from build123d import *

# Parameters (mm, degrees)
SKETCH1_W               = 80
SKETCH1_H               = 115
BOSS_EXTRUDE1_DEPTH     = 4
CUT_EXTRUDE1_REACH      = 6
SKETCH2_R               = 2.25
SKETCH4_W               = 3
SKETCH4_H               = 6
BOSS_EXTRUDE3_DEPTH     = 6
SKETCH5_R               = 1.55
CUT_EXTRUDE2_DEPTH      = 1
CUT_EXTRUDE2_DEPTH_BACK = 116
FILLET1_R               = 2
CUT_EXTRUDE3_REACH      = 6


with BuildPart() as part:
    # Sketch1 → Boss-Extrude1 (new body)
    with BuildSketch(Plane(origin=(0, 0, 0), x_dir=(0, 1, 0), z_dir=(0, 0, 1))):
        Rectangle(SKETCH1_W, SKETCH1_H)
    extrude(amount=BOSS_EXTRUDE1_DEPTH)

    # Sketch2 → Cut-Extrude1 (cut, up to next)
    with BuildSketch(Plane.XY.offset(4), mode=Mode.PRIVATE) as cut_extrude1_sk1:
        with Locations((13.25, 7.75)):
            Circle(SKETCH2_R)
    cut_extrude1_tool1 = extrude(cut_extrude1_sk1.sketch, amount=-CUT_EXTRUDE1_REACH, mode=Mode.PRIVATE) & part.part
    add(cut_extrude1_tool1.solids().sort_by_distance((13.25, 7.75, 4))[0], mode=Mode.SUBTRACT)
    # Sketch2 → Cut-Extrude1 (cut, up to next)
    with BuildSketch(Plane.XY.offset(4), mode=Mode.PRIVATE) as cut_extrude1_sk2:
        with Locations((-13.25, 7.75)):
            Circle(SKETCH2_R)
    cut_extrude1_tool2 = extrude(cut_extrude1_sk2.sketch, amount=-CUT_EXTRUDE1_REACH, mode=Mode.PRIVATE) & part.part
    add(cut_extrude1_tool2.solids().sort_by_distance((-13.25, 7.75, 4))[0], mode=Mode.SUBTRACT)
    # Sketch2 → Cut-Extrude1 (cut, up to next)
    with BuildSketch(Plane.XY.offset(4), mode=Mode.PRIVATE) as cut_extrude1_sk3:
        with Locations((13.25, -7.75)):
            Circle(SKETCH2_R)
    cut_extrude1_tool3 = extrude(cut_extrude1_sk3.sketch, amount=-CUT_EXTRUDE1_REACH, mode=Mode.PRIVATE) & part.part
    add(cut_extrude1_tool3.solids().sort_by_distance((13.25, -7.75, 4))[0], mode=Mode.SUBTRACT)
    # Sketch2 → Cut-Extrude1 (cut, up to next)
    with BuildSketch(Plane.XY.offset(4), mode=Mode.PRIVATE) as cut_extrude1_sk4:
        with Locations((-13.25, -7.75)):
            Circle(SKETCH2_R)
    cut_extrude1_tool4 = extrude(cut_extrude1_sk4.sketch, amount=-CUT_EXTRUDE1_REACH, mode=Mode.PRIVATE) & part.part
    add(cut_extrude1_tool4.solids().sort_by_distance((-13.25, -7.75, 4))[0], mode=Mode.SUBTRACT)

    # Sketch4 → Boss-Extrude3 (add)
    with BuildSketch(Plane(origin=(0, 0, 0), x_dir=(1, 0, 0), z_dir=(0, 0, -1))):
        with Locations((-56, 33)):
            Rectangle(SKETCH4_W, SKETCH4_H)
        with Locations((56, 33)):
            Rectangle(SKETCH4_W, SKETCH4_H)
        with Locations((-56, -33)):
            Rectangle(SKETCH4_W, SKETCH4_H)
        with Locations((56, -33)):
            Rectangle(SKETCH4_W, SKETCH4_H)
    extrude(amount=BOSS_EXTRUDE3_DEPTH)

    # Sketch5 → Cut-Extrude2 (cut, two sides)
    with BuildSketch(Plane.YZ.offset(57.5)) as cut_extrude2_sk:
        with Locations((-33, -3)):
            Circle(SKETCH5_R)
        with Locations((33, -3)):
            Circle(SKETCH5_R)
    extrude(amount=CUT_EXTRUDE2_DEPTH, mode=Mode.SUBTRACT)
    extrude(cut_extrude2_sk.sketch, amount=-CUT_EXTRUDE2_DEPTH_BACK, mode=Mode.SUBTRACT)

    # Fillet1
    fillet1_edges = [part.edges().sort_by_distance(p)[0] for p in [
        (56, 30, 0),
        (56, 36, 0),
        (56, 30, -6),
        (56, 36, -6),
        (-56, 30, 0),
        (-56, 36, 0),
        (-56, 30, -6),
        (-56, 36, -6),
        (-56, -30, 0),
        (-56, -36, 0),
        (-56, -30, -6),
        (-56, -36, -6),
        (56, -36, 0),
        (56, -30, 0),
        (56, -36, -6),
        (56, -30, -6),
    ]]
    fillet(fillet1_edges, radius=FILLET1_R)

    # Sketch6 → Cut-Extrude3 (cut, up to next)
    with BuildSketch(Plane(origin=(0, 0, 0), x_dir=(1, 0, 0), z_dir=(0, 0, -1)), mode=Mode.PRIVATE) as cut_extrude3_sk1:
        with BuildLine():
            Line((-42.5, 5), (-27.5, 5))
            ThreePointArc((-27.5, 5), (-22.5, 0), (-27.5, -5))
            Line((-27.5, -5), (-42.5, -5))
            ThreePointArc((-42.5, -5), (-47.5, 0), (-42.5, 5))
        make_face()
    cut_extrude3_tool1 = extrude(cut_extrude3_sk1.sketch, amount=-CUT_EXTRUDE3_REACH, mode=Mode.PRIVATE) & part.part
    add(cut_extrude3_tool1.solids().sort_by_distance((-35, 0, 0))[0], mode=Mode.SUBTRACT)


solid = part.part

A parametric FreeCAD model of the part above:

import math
import FreeCAD as App
import Part
import Sketcher

V = App.Vector


def edges_at(feature, points):
    """Names of the edges that pass closest to the given points."""
    edges = feature.Shape.Edges
    near = lambda p: min(range(len(edges)), key=lambda i: edges[i].distToShape(Part.Vertex(*p))[0])
    return sorted({f"Edge{near(p) + 1}" for p in points})

doc = App.newDocument("Part")
body = doc.addObject("PartDesign::Body", "Body")

# Sketch on XY plane
sketch1 = body.newObject("Sketcher::SketchObject", "Sketch")
sketch1.AttachmentSupport = (doc.getObject("XY_Plane"), [""])
sketch1.MapMode = "FlatFace"
sketch1.addGeometry(Part.LineSegment(V(-58, -40, 0), V(58, -40, 0)), False)
sketch1.addGeometry(Part.LineSegment(V(58, -40, 0), V(58, 40, 0)), False)
sketch1.addGeometry(Part.LineSegment(V(58, 40, 0), V(-58, 40, 0)), False)
sketch1.addGeometry(Part.LineSegment(V(-58, 40, 0), V(-58, -40, 0)), False)
sketch1.addConstraint(Sketcher.Constraint("Coincident", 0, 2, 1, 1))
sketch1.addConstraint(Sketcher.Constraint("Coincident", 1, 2, 2, 1))
sketch1.addConstraint(Sketcher.Constraint("Coincident", 2, 2, 3, 1))
sketch1.addConstraint(Sketcher.Constraint("Coincident", 3, 2, 0, 1))
sketch1.addConstraint(Sketcher.Constraint("Horizontal", 0))
sketch1.addConstraint(Sketcher.Constraint("Vertical", 1))
sketch1.addConstraint(Sketcher.Constraint("Horizontal", 2))
sketch1.addConstraint(Sketcher.Constraint("Vertical", 3))
sketch1.addConstraint(Sketcher.Constraint("Symmetric", 0, 2, 2, 2, -1, 1))
sketch1.addConstraint(Sketcher.Constraint("DistanceX", 0, 1, 0, 2, 115.0))
sketch1.addConstraint(Sketcher.Constraint("DistanceY", 1, 1, 1, 2, 80.0))
pad1 = body.newObject("PartDesign::Pad", "Pad")
pad1.Profile = sketch1
pad1.Length = 4

# Sketch on XY plane
sketch2 = body.newObject("Sketcher::SketchObject", "Sketch001")
sketch2.AttachmentSupport = (doc.getObject("XY_Plane"), [""])
sketch2.MapMode = "FlatFace"
sketch2.AttachmentOffset = App.Placement(V(0, 0, 4), App.Rotation())
sketch2.addGeometry(Part.Circle(V(13.2, 7.8, 0), V(0, 0, 1), 2.2), False)
sketch2.addConstraint(Sketcher.Constraint("Diameter", 0, 4.5))
sketch2.addConstraint(Sketcher.Constraint("DistanceX", -1, 1, 0, 3, 13.25))
sketch2.addConstraint(Sketcher.Constraint("DistanceY", -1, 1, 0, 3, 7.75))
pocket1 = body.newObject("PartDesign::Pocket", "Pocket")
pocket1.Profile = sketch2
pocket1.Type = "UpToFirst"

# Sketch on XY plane
sketch3 = body.newObject("Sketcher::SketchObject", "Sketch002")
sketch3.AttachmentSupport = (doc.getObject("XY_Plane"), [""])
sketch3.MapMode = "FlatFace"
sketch3.AttachmentOffset = App.Placement(V(0, 0, 4), App.Rotation())
sketch3.addGeometry(Part.Circle(V(-13.2, 7.8, 0), V(0, 0, 1), 2.2), False)
sketch3.addConstraint(Sketcher.Constraint("Diameter", 0, 4.5))
sketch3.addConstraint(Sketcher.Constraint("DistanceX", 0, 3, -1, 1, 13.25))
sketch3.addConstraint(Sketcher.Constraint("DistanceY", -1, 1, 0, 3, 7.75))
pocket2 = body.newObject("PartDesign::Pocket", "Pocket001")
pocket2.Profile = sketch3
pocket2.Type = "UpToFirst"

# Sketch on XY plane
sketch4 = body.newObject("Sketcher::SketchObject", "Sketch003")
sketch4.AttachmentSupport = (doc.getObject("XY_Plane"), [""])
sketch4.MapMode = "FlatFace"
sketch4.AttachmentOffset = App.Placement(V(0, 0, 4), App.Rotation())
sketch4.addGeometry(Part.Circle(V(13.2, -7.8, 0), V(0, 0, 1), 2.2), False)
sketch4.addConstraint(Sketcher.Constraint("Diameter", 0, 4.5))
sketch4.addConstraint(Sketcher.Constraint("DistanceX", -1, 1, 0, 3, 13.25))
sketch4.addConstraint(Sketcher.Constraint("DistanceY", 0, 3, -1, 1, 7.75))
pocket3 = body.newObject("PartDesign::Pocket", "Pocket002")
pocket3.Profile = sketch4
pocket3.Type = "UpToFirst"

# Sketch on XY plane
sketch5 = body.newObject("Sketcher::SketchObject", "Sketch004")
sketch5.AttachmentSupport = (doc.getObject("XY_Plane"), [""])
sketch5.MapMode = "FlatFace"
sketch5.AttachmentOffset = App.Placement(V(0, 0, 4), App.Rotation())
sketch5.addGeometry(Part.Circle(V(-13.2, -7.8, 0), V(0, 0, 1), 2.2), False)
sketch5.addConstraint(Sketcher.Constraint("Diameter", 0, 4.5))
sketch5.addConstraint(Sketcher.Constraint("DistanceX", 0, 3, -1, 1, 13.25))
sketch5.addConstraint(Sketcher.Constraint("DistanceY", 0, 3, -1, 1, 7.75))
pocket4 = body.newObject("PartDesign::Pocket", "Pocket003")
pocket4.Profile = sketch5
pocket4.Type = "UpToFirst"

# Sketch on XY plane
sketch6 = body.newObject("Sketcher::SketchObject", "Sketch005")
sketch6.AttachmentSupport = (doc.getObject("XY_Plane"), [""])
sketch6.MapMode = "FlatFace"
sketch6.addGeometry(Part.LineSegment(V(-57.5, -36, 0), V(-57.5, -30, 0)), False)
sketch6.addGeometry(Part.LineSegment(V(-57.5, -30, 0), V(-54.5, -30, 0)), False)
sketch6.addGeometry(Part.LineSegment(V(-54.5, -30, 0), V(-54.5, -36, 0)), False)
sketch6.addGeometry(Part.LineSegment(V(-54.5, -36, 0), V(-57.5, -36, 0)), False)
sketch6.addGeometry(Part.LineSegment(V(54.5, -36, 0), V(54.5, -30, 0)), False)
sketch6.addGeometry(Part.LineSegment(V(54.5, -30, 0), V(57.5, -30, 0)), False)
sketch6.addGeometry(Part.LineSegment(V(57.5, -30, 0), V(57.5, -36, 0)), False)
sketch6.addGeometry(Part.LineSegment(V(57.5, -36, 0), V(54.5, -36, 0)), False)
sketch6.addGeometry(Part.LineSegment(V(-57.5, 30, 0), V(-57.5, 36, 0)), False)
sketch6.addGeometry(Part.LineSegment(V(-57.5, 36, 0), V(-54.5, 36, 0)), False)
sketch6.addGeometry(Part.LineSegment(V(-54.5, 36, 0), V(-54.5, 30, 0)), False)
sketch6.addGeometry(Part.LineSegment(V(-54.5, 30, 0), V(-57.5, 30, 0)), False)
sketch6.addGeometry(Part.LineSegment(V(54.5, 30, 0), V(54.5, 36, 0)), False)
sketch6.addGeometry(Part.LineSegment(V(54.5, 36, 0), V(57.5, 36, 0)), False)
sketch6.addGeometry(Part.LineSegment(V(57.5, 36, 0), V(57.5, 30, 0)), False)
sketch6.addGeometry(Part.LineSegment(V(57.5, 30, 0), V(54.5, 30, 0)), False)
sketch6.addConstraint(Sketcher.Constraint("Coincident", 0, 2, 1, 1))
sketch6.addConstraint(Sketcher.Constraint("Coincident", 1, 2, 2, 1))
sketch6.addConstraint(Sketcher.Constraint("Coincident", 2, 2, 3, 1))
sketch6.addConstraint(Sketcher.Constraint("Coincident", 3, 2, 0, 1))
sketch6.addConstraint(Sketcher.Constraint("Coincident", 4, 2, 5, 1))
sketch6.addConstraint(Sketcher.Constraint("Coincident", 5, 2, 6, 1))
sketch6.addConstraint(Sketcher.Constraint("Coincident", 6, 2, 7, 1))
sketch6.addConstraint(Sketcher.Constraint("Coincident", 7, 2, 4, 1))
sketch6.addConstraint(Sketcher.Constraint("Coincident", 8, 2, 9, 1))
sketch6.addConstraint(Sketcher.Constraint("Coincident", 9, 2, 10, 1))
sketch6.addConstraint(Sketcher.Constraint("Coincident", 10, 2, 11, 1))
sketch6.addConstraint(Sketcher.Constraint("Coincident", 11, 2, 8, 1))
sketch6.addConstraint(Sketcher.Constraint("Coincident", 12, 2, 13, 1))
sketch6.addConstraint(Sketcher.Constraint("Coincident", 13, 2, 14, 1))
sketch6.addConstraint(Sketcher.Constraint("Coincident", 14, 2, 15, 1))
sketch6.addConstraint(Sketcher.Constraint("Coincident", 15, 2, 12, 1))
sketch6.addConstraint(Sketcher.Constraint("Vertical", 0))
sketch6.addConstraint(Sketcher.Constraint("Horizontal", 1))
sketch6.addConstraint(Sketcher.Constraint("Vertical", 2))
sketch6.addConstraint(Sketcher.Constraint("Horizontal", 3))
sketch6.addConstraint(Sketcher.Constraint("Vertical", 4))
sketch6.addConstraint(Sketcher.Constraint("Horizontal", 5))
sketch6.addConstraint(Sketcher.Constraint("Vertical", 6))
sketch6.addConstraint(Sketcher.Constraint("Horizontal", 7))
sketch6.addConstraint(Sketcher.Constraint("Vertical", 8))
sketch6.addConstraint(Sketcher.Constraint("Horizontal", 9))
sketch6.addConstraint(Sketcher.Constraint("Vertical", 10))
sketch6.addConstraint(Sketcher.Constraint("Horizontal", 11))
sketch6.addConstraint(Sketcher.Constraint("Vertical", 12))
sketch6.addConstraint(Sketcher.Constraint("Horizontal", 13))
sketch6.addConstraint(Sketcher.Constraint("Vertical", 14))
sketch6.addConstraint(Sketcher.Constraint("Horizontal", 15))
sketch6.addConstraint(Sketcher.Constraint("Symmetric", 6, 2, 8, 2, -1, 1))
sketch6.addConstraint(Sketcher.Constraint("Symmetric", 4, 2, 10, 2, -1, 1))
sketch6.addConstraint(Sketcher.Constraint("Symmetric", 2, 2, 12, 2, -1, 1))
sketch6.addConstraint(Sketcher.Constraint("Symmetric", 0, 2, 14, 2, -1, 1))
sketch6.addConstraint(Sketcher.Constraint("Symmetric", 1, 2, 4, 2, -2))
sketch6.addConstraint(Sketcher.Constraint("Symmetric", 3, 2, 6, 2, -2))
sketch6.addConstraint(Sketcher.Constraint("DistanceX", 1, 1, 1, 2, 3.0))
sketch6.addConstraint(Sketcher.Constraint("DistanceY", 0, 1, 0, 2, 6.0))
sketch6.addConstraint(Sketcher.Constraint("DistanceY", 0, 2, -1, 1, 30.0))
sketch6.addConstraint(Sketcher.Constraint("DistanceX", 1, 2, 4, 2, 109.0))
pad2 = body.newObject("PartDesign::Pad", "Pad001")
pad2.Profile = sketch6
pad2.Length = 6
pad2.Reversed = True

# Sketch on YZ plane
sketch7 = body.newObject("Sketcher::SketchObject", "Sketch006")
sketch7.AttachmentSupport = (doc.getObject("YZ_Plane"), [""])
sketch7.MapMode = "FlatFace"
sketch7.AttachmentOffset = App.Placement(V(0, 0, 57.5), App.Rotation())
sketch7.addGeometry(Part.Circle(V(-33, -3, 0), V(0, 0, 1), 1.6), False)
sketch7.addGeometry(Part.Circle(V(33, -3, 0), V(0, 0, 1), 1.6), False)
sketch7.addConstraint(Sketcher.Constraint("Equal", 0, 1))
sketch7.addConstraint(Sketcher.Constraint("Symmetric", 0, 3, 1, 3, -2))
sketch7.addConstraint(Sketcher.Constraint("Diameter", 0, 3.1))
sketch7.addConstraint(Sketcher.Constraint("DistanceX", 0, 3, -1, 1, 33.0))
sketch7.addConstraint(Sketcher.Constraint("DistanceY", 0, 3, -1, 1, 3.0))
pocket5 = body.newObject("PartDesign::Pocket", "Pocket004")
pocket5.Profile = sketch7
pocket5.Type = "ThroughAll"
pocket5.Midplane = True
doc.recompute()

fillet = body.newObject("PartDesign::Fillet", "Fillet")
fillet.Base = (pocket5, edges_at(pocket5, [
    (56, 30, 0),
    (56, 36, 0),
    (56, 30, -6),
    (56, 36, -6),
    (-56, 30, 0),
    (-56, 36, 0),
    (-56, 30, -6),
    (-56, 36, -6),
    (-56, -30, 0),
    (-56, -36, 0),
    (-56, -30, -6),
    (-56, -36, -6),
    (56, -36, 0),
    (56, -30, 0),
    (56, -36, -6),
    (56, -30, -6),
]))
fillet.Radius = 2

# Sketch on XY plane
sketch8 = body.newObject("Sketcher::SketchObject", "Sketch007")
sketch8.AttachmentSupport = (doc.getObject("XY_Plane"), [""])
sketch8.MapMode = "FlatFace"
sketch8.addGeometry(Part.LineSegment(V(-28, -5, 0), V(-42, -5, 0)), False)
sketch8.addGeometry(Part.ArcOfCircle(Part.Circle(V(-42, 0, 0), V(0, 0, 1), 5), math.radians(90), math.radians(270)), False)
sketch8.addGeometry(Part.LineSegment(V(-42, 5, 0), V(-28, 5, 0)), False)
sketch8.addGeometry(Part.ArcOfCircle(Part.Circle(V(-28, 0, 0), V(0, 0, 1), 5), math.radians(-90), math.radians(90)), False)
sketch8.addConstraint(Sketcher.Constraint("Tangent", 0, 2, 1, 2))
sketch8.addConstraint(Sketcher.Constraint("Tangent", 1, 1, 2, 1))
sketch8.addConstraint(Sketcher.Constraint("Tangent", 2, 2, 3, 2))
sketch8.addConstraint(Sketcher.Constraint("Tangent", 3, 1, 0, 1))
sketch8.addConstraint(Sketcher.Constraint("Horizontal", 0))
sketch8.addConstraint(Sketcher.Constraint("Horizontal", 2))
sketch8.addConstraint(Sketcher.Constraint("PointOnObject", 1, 3, -1))
sketch8.addConstraint(Sketcher.Constraint("Radius", 1, 5.0))
sketch8.addConstraint(Sketcher.Constraint("DistanceX", 0, 2, 0, 1, 15.0))
sketch8.addConstraint(Sketcher.Constraint("DistanceX", 1, 3, -1, 1, 42.5))
pocket6 = body.newObject("PartDesign::Pocket", "Pocket005")
pocket6.Profile = sketch8
pocket6.Type = "UpToFirst"
pocket6.Reversed = True

doc.recompute()
